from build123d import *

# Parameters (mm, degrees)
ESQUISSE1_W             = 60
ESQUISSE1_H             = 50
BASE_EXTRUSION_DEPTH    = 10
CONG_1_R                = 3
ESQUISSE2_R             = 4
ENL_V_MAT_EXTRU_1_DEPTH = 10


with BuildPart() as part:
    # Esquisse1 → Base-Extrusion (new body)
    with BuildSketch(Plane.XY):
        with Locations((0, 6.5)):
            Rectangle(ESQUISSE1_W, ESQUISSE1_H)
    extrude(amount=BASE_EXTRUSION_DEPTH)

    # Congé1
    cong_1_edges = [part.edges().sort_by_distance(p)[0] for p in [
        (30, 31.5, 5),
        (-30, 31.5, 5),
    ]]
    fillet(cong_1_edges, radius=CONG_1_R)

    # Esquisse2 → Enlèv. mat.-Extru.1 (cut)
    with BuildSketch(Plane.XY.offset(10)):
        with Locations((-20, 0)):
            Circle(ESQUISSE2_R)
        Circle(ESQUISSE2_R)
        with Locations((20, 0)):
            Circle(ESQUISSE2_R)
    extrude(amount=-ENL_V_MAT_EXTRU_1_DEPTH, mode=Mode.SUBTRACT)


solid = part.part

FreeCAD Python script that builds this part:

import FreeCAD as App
import Part
import Sketcher

V = App.Vector


def edges_at(feature, points):
    """Names of the edges that pass closest to the given points."""
    edges = feature.Shape.Edges
    near = lambda p: min(range(len(edges)), key=lambda i: edges[i].distToShape(Part.Vertex(*p))[0])
    return sorted({f"Edge{near(p) + 1}" for p in points})


def add_polygon(sketch, points):
    """Adds a closed chain of lines whose ends are joined by coincident constraints."""
    first, n = sketch.GeometryCount, len(points)
    for a, b in zip(points, points[1:] + points[:1]):
        sketch.addGeometry(Part.LineSegment(App.Vector(*a, 0), App.Vector(*b, 0)), False)
    for i in range(n):
        sketch.addConstraint(Sketcher.Constraint("Coincident", first + i, 2, first + (i + 1) % n, 1))

doc = App.newDocument("Part")
body = doc.addObject("PartDesign::Body", "Body")

# Sketch on XY plane
sketch1 = body.newObject("Sketcher::SketchObject", "Sketch")
sketch1.AttachmentSupport = (doc.getObject("XY_Plane"), [""])
sketch1.MapMode = "FlatFace"
add_polygon(sketch1, [(-30, 32), (-30, -18), (30, -18), (30, 32)])  # lines 0-3
sketch1.addConstraint(Sketcher.Constraint("Vertical", 0))
sketch1.addConstraint(Sketcher.Constraint("Horizontal", 1))
sketch1.addConstraint(Sketcher.Constraint("Vertical", 2))
sketch1.addConstraint(Sketcher.Constraint("Horizontal", 3))
sketch1.addConstraint(Sketcher.Constraint("DistanceX", 1, 1, 1, 2, 60.0))
sketch1.addConstraint(Sketcher.Constraint("DistanceY", 0, 2, 0, 1, 50.0))
sketch1.addConstraint(Sketcher.Constraint("DistanceX", 0, 2, -1, 1, 30.0))
sketch1.addConstraint(Sketcher.Constraint("DistanceY", 0, 2, -1, 1, 18.5))
pad1 = body.newObject("PartDesign::Pad", "Pad")
pad1.Profile = sketch1
pad1.Length = 10
doc.recompute()

fillet = body.newObject("PartDesign::Fillet", "Fillet")
fillet.Base = (pad1, edges_at(pad1, [(30, 31.5, 5), (-30, 31.5, 5)]))
fillet.Radius = 3

# Sketch on XY plane
sketch2 = body.newObject("Sketcher::SketchObject", "Sketch001")
sketch2.AttachmentSupport = (doc.getObject("XY_Plane"), [""])
sketch2.MapMode = "FlatFace"
sketch2.AttachmentOffset = App.Placement(V(0, 0, 10), App.Rotation())
sketch2.addGeometry(Part.Circle(V(-20, 0, 0), V(0, 0, 1), 4), False)
sketch2.addGeometry(Part.Circle(V(0, 0, 0), V(0, 0, 1), 4), False)
sketch2.addGeometry(Part.Circle(V(20, 0, 0), V(0, 0, 1), 4), False)
sketch2.addConstraint(Sketcher.Constraint("Coincident", 1, 3, -1, 1))
sketch2.addConstraint(Sketcher.Constraint("Equal", 0, 1))
sketch2.addConstraint(Sketcher.Constraint("Equal", 1, 2))
sketch2.addConstraint(Sketcher.Constraint("Symmetric", 0, 3, 2, 3, -1, 1))
sketch2.addConstraint(Sketcher.Constraint("PointOnObject", 0, 3, -1))
sketch2.addConstraint(Sketcher.Constraint("Diameter", 0, 8.0))
sketch2.addConstraint(Sketcher.Constraint("DistanceX", 0, 3, -1, 1, 20.0))
pocket1 = body.newObject("PartDesign::Pocket", "Pocket")
pocket1.Profile = sketch2
pocket1.Length = 10

doc.recompute()
